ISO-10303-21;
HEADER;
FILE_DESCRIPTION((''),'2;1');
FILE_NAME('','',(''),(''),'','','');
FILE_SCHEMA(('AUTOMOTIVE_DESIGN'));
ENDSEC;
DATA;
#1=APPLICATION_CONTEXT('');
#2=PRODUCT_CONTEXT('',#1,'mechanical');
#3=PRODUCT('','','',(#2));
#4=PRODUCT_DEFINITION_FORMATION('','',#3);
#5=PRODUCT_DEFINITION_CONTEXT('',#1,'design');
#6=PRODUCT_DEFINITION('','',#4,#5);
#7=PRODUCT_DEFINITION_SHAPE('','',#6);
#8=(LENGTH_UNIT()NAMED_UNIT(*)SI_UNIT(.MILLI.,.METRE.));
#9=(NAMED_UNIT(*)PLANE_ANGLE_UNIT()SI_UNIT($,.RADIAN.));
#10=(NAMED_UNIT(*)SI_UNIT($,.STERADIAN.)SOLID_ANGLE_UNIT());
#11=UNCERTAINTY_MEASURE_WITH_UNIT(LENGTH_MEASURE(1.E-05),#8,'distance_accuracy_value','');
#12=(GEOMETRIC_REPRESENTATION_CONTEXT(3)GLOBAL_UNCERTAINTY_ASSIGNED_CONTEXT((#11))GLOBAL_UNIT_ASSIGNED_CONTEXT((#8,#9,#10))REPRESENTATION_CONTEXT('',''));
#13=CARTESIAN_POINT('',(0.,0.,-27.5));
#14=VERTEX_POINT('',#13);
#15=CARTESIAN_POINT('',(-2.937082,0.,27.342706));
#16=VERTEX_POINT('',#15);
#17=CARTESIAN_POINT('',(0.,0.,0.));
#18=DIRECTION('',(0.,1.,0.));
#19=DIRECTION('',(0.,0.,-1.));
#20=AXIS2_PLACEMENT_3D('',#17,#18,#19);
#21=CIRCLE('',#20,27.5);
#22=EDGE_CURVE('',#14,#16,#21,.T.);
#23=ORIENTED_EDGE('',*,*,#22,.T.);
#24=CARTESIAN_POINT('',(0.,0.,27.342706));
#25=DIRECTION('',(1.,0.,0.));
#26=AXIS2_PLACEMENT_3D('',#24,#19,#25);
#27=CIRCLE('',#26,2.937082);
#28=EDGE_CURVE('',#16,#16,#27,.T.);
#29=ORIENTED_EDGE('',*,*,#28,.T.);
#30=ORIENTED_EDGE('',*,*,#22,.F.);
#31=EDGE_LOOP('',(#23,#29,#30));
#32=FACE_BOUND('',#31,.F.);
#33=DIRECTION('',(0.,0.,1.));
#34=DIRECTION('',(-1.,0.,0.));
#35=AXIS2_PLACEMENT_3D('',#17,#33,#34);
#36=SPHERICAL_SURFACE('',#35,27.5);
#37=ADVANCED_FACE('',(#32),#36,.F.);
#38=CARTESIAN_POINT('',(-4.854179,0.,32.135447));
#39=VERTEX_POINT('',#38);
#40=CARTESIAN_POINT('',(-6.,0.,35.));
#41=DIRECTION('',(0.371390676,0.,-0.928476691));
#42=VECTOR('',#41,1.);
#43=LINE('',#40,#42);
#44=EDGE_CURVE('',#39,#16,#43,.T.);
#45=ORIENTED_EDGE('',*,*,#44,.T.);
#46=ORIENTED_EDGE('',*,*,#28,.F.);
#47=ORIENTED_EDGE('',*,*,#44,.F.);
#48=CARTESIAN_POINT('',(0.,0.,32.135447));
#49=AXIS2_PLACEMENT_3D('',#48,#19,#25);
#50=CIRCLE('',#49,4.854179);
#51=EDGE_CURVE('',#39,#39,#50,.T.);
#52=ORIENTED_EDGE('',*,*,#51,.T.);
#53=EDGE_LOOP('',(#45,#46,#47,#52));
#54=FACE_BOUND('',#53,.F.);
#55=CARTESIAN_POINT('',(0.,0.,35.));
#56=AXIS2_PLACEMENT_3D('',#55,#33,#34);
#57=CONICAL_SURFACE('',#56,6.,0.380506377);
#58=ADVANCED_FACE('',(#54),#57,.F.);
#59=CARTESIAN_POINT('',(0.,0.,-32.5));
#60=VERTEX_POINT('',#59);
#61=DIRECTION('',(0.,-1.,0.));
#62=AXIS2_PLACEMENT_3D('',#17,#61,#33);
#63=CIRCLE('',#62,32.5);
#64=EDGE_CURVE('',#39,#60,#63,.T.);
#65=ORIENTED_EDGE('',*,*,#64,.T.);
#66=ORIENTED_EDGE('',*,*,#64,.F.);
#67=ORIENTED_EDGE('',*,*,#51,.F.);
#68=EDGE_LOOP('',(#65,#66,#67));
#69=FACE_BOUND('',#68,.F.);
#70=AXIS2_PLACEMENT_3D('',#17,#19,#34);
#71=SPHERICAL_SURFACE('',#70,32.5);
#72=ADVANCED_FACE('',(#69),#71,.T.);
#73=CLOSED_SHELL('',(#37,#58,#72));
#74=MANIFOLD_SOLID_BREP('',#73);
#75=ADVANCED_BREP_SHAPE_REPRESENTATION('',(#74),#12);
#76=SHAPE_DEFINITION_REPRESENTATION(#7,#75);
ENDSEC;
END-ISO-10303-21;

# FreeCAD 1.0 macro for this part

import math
import FreeCAD as App
import Part
import Sketcher
from FreeCAD import Vector


def add_polygon(sketch, points):
    """Adds a closed chain of lines whose ends are joined by coincident constraints."""
    first, n = sketch.GeometryCount, len(points)
    for a, b in zip(points, points[1:] + points[:1]):
        sketch.addGeometry(Part.LineSegment(App.Vector(*a, 0), App.Vector(*b, 0)), False)
    for i in range(n):
        sketch.addConstraint(Sketcher.Constraint("Coincident", first + i, 2, first + (i + 1) % n, 1))

doc = App.newDocument("Part")
body = doc.addObject("PartDesign::Body", "Body")

# Sketch on XZ plane
sketch1 = body.newObject("Sketcher::SketchObject", "Sketch")
sketch1.AttachmentSupport = (doc.getObject("XZ_Plane"), [""])
sketch1.MapMode = "FlatFace"
sketch1.addGeometry([
    Part.ArcOfCircle(Part.Circle(Vector(0, 0, 0), Vector(0, 0, 1), 32), math.radians(90), math.radians(270)),
    Part.LineSegment(Vector(0, -32, 0), Vector(0, -28, 0)),
    Part.ArcOfCircle(Part.Circle(Vector(0, 0, 0), Vector(0, 0, 1), 28), math.radians(90), math.radians(270)),
    Part.LineSegment(Vector(0, 28, 0), Vector(0, 32, 0)),
], False)
sketch1.addConstraint([
    Sketcher.Constraint("Coincident", 0, 2, 1, 1),
    Sketcher.Constraint("Coincident", 1, 2, 2, 2),
    Sketcher.Constraint("Coincident", 2, 1, 3, 1),
    Sketcher.Constraint("Coincident", 3, 2, 0, 1),
    Sketcher.Constraint("Vertical", 1),
    Sketcher.Constraint("Vertical", 3),
    Sketcher.Constraint("Coincident", 0, 3, -1, 1),
    Sketcher.Constraint("Coincident", 2, 3, -1, 1),
    Sketcher.Constraint("PointOnObject", 0, 2, -2),
    Sketcher.Constraint("PointOnObject", 2, 1, -2),
    Sketcher.Constraint("Radius", 0, 32.5),
    Sketcher.Constraint("Radius", 2, 27.5),
])
revolution = body.newObject("PartDesign::Revolution", "Revolution")
revolution.Profile = sketch1
revolution.ReferenceAxis = (sketch1, ["V_Axis"])
revolution.Angle = 360

# Sketch on XZ plane
sketch2 = body.newObject("Sketcher::SketchObject", "Sketch001")
sketch2.AttachmentSupport = (doc.getObject("XZ_Plane"), [""])
sketch2.MapMode = "FlatFace"
add_polygon(sketch2, [(-6, 35), (0, 20), (0, 35)])  # lines 0-2
sketch2.addConstraint([
    Sketcher.Constraint("Vertical", 1),
    Sketcher.Constraint("Horizontal", 2),
    Sketcher.Constraint("PointOnObject", 0, 2, -2),
    Sketcher.Constraint("DistanceX", 2, 2, 2, 1, 6.0),
    Sketcher.Constraint("DistanceY", 1, 1, 1, 2, 15.0),
    Sketcher.Constraint("DistanceY", -1, 1, 0, 2, 20.0),
])
groove = body.newObject("PartDesign::Groove", "Groove")
groove.Profile = sketch2
groove.ReferenceAxis = (sketch2, ["V_Axis"])
groove.Angle = 360

doc.recompute()
